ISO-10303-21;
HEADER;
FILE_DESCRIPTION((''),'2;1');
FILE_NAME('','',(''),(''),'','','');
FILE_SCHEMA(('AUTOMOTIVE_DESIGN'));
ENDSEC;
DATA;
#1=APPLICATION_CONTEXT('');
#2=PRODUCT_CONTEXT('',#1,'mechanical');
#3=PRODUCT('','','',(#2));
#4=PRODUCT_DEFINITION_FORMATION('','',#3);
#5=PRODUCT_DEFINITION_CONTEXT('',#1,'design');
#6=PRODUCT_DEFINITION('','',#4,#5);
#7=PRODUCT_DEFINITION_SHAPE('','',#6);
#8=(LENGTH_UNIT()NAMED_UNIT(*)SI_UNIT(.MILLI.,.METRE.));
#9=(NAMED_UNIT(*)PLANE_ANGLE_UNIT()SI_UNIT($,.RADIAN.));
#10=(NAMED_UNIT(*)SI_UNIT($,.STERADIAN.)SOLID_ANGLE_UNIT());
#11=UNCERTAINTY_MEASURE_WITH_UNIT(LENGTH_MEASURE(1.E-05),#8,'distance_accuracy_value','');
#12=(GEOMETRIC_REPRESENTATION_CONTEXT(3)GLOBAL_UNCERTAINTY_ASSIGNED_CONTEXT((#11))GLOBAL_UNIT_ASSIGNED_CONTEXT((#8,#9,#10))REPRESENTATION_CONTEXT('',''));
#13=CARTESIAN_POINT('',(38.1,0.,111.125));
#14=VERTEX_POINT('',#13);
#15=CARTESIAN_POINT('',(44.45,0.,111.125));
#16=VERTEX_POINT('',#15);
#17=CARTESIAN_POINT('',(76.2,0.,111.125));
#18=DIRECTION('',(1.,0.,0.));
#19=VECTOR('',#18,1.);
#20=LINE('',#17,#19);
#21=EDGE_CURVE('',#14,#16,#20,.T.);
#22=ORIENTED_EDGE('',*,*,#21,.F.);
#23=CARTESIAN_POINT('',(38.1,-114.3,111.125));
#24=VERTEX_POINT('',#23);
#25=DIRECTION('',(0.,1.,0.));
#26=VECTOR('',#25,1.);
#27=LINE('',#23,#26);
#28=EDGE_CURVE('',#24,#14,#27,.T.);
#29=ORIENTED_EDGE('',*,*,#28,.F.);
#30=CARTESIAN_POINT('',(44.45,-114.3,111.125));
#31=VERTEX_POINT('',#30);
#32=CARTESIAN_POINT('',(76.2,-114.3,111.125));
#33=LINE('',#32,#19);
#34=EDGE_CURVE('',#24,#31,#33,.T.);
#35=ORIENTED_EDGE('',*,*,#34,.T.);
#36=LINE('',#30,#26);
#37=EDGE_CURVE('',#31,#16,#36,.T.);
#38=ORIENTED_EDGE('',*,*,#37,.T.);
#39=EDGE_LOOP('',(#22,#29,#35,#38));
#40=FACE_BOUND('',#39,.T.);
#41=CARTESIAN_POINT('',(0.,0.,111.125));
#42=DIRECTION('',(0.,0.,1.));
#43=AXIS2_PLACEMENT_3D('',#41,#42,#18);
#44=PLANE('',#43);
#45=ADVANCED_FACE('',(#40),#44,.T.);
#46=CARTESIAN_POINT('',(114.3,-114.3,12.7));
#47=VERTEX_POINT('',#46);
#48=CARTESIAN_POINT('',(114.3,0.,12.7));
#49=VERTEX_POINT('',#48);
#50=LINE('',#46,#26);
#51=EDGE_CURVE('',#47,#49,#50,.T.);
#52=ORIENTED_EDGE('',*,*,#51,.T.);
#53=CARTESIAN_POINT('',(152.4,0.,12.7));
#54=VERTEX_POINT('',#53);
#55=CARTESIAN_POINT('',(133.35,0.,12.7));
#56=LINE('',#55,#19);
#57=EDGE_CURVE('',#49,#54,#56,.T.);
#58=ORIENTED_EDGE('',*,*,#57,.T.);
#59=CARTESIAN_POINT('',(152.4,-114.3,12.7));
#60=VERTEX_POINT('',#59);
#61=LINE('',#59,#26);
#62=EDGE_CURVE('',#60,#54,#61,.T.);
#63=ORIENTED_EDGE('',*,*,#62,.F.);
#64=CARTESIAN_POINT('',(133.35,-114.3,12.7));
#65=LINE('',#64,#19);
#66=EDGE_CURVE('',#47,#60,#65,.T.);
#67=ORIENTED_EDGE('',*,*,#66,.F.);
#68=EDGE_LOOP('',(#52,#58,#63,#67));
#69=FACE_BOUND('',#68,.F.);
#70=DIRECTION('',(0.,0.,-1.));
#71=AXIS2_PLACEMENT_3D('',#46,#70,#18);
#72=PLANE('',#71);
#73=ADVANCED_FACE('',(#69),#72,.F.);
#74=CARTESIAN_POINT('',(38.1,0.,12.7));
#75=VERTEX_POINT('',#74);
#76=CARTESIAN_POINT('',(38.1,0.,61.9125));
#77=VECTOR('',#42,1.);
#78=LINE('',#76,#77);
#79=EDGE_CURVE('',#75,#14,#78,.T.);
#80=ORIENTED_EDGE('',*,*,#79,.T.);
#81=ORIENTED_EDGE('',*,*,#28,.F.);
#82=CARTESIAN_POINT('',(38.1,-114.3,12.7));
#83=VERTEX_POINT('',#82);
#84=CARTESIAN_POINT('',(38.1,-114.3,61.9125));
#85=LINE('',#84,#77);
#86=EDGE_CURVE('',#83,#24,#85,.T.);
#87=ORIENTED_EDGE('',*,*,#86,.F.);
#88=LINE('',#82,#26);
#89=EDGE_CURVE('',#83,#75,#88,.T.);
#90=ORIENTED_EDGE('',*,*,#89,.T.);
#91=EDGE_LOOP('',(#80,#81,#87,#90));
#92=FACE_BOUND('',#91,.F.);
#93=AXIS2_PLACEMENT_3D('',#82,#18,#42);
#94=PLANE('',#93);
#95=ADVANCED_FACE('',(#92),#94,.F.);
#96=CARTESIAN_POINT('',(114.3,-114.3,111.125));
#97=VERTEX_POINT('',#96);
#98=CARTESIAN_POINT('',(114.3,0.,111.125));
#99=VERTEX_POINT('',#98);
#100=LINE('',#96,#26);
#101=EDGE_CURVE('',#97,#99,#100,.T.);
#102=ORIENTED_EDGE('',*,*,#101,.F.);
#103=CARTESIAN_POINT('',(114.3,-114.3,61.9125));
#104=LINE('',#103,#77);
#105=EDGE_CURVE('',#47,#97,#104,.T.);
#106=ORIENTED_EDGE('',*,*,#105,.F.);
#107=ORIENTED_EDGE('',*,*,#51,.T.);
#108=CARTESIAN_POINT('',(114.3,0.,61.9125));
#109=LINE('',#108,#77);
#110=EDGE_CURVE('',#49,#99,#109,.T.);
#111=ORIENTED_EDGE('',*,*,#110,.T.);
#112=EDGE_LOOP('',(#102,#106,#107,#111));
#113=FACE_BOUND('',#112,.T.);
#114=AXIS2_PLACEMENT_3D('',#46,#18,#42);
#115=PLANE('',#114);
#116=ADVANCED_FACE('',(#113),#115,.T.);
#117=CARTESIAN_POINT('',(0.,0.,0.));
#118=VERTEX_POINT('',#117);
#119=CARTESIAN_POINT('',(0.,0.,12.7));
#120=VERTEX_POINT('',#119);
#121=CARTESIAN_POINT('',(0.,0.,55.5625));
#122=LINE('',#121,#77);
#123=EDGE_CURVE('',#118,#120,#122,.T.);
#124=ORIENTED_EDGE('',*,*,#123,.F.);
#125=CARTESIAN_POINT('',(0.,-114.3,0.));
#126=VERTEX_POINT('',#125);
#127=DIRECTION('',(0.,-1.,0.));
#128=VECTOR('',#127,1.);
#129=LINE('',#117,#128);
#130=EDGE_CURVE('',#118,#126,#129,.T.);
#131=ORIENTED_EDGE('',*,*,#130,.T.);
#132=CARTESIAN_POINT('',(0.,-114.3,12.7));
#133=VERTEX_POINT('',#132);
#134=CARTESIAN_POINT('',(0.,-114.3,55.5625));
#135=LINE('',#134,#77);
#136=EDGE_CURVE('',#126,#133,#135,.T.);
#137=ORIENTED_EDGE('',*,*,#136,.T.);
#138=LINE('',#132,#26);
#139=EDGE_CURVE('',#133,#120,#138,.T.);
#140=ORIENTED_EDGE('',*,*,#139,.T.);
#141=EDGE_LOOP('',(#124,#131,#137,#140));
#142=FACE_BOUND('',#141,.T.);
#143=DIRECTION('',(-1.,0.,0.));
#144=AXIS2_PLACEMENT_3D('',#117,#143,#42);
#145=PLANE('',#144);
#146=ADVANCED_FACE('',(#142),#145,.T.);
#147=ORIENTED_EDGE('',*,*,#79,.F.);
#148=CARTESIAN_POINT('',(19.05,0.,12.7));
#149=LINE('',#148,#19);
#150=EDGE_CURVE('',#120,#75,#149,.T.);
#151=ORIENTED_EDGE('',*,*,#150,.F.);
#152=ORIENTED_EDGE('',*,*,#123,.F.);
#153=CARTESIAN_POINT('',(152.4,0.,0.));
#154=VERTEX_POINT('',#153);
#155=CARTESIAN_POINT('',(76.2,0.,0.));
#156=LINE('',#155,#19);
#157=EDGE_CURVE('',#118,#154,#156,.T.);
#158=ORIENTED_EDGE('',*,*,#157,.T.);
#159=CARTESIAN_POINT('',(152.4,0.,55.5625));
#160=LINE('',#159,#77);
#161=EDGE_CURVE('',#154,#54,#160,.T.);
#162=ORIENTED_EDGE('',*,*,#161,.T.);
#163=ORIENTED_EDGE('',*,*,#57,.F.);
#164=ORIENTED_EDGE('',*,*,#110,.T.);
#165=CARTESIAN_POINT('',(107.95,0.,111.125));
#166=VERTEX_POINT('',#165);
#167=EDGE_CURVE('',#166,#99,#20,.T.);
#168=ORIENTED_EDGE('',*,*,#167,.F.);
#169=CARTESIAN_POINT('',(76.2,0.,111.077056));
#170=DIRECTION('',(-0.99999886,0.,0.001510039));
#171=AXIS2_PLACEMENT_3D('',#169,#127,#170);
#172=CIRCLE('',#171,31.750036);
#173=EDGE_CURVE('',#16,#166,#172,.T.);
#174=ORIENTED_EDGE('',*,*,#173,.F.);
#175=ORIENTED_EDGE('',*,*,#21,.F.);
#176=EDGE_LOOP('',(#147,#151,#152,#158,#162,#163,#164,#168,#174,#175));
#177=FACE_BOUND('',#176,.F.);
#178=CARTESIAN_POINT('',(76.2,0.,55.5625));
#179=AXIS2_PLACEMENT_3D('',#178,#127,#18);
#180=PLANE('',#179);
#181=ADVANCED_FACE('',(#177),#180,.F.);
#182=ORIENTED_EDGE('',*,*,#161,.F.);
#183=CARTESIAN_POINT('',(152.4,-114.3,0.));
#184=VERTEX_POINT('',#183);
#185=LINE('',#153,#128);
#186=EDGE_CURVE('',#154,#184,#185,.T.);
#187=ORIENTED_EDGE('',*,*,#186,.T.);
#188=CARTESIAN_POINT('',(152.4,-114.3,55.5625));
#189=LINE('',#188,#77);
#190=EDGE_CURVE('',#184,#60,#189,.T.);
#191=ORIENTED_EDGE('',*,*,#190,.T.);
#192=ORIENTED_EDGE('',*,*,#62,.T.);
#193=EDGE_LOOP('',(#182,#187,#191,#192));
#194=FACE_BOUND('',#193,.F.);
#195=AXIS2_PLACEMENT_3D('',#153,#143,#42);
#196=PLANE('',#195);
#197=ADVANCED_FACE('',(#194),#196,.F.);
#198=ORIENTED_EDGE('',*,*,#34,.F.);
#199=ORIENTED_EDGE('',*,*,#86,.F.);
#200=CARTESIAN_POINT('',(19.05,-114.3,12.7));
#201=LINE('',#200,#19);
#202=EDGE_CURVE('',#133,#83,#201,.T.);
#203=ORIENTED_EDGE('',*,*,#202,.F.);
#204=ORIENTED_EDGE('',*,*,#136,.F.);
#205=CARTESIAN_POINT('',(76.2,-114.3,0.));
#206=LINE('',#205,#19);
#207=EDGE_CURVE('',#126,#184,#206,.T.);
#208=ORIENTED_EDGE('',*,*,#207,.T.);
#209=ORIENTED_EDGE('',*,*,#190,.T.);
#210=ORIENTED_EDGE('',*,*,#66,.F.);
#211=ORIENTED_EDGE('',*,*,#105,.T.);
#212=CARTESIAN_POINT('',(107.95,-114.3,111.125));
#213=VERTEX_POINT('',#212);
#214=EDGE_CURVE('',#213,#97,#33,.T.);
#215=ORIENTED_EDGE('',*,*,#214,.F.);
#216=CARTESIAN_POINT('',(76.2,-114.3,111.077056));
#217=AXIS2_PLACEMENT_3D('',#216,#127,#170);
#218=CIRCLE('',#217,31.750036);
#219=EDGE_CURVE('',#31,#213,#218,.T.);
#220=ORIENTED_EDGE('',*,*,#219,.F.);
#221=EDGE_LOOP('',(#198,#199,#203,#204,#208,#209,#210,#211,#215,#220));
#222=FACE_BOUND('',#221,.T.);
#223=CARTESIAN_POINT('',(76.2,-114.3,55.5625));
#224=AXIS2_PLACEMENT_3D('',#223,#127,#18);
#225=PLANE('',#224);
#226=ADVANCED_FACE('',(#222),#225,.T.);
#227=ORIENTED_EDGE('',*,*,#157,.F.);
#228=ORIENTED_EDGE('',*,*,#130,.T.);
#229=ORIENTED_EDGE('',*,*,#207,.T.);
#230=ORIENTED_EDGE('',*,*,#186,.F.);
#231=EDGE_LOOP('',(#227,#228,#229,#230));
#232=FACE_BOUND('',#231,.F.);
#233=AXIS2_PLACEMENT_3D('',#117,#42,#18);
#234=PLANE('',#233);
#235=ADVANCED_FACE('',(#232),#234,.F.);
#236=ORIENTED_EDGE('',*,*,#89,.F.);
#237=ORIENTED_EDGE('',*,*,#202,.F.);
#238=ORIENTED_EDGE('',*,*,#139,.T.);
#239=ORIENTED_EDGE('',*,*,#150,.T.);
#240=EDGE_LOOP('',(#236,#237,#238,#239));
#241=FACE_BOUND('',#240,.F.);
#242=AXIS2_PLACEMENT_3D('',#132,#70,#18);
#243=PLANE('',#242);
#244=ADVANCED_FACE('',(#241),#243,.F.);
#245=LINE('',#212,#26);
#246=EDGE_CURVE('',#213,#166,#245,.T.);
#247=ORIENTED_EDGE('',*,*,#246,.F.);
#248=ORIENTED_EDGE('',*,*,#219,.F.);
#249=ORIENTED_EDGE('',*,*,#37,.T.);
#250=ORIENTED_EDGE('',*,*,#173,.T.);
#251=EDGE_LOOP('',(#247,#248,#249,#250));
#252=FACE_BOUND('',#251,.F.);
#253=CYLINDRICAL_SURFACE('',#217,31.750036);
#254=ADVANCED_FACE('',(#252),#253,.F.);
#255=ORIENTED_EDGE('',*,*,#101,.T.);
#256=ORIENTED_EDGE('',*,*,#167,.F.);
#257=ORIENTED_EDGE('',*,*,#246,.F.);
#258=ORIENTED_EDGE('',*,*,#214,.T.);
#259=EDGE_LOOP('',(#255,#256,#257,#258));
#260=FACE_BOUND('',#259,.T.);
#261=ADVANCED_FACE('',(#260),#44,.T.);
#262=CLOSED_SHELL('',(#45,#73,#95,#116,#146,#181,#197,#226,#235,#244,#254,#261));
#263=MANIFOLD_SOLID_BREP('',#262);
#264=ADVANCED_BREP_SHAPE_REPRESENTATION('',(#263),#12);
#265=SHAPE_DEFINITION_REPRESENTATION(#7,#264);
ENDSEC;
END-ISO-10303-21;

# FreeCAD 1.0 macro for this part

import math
import FreeCAD as App
import Part
import Sketcher
from FreeCAD import Vector
Q = App.Units.Quantity

doc = App.newDocument("Part")
body = doc.addObject("PartDesign::Body", "Body")

# Sketch on XZ plane
sketch1 = doc.addObject("Sketcher::SketchObject", "Sketch")
body.addObject(sketch1)
sketch1.AttachmentSupport = (doc.XZ_Plane, [""])
sketch1.MapMode = "FlatFace"
sketch1.addGeometry([
    Part.LineSegment(Vector(0, 111, 0), Vector(0, 0, 0)),
    Part.LineSegment(Vector(0, 0, 0), Vector(152, 0, 0)),
    Part.LineSegment(Vector(152, 0, 0), Vector(152, 111, 0)),
    Part.LineSegment(Vector(152, 111, 0), Vector(0, 111, 0)),
], False)
sketch1.addConstraint([
    Sketcher.Constraint("Coincident", 0, 2, 1, 1),
    Sketcher.Constraint("Coincident", 1, 2, 2, 1),
    Sketcher.Constraint("Coincident", 2, 2, 3, 1),
    Sketcher.Constraint("Coincident", 3, 2, 0, 1),
    Sketcher.Constraint("Vertical", 0),
    Sketcher.Constraint("Horizontal", 1),
    Sketcher.Constraint("Vertical", 2),
    Sketcher.Constraint("Horizontal", 3),
    Sketcher.Constraint("Coincident", 0, 2, -1, 1),
    Sketcher.Constraint("DistanceX", 1, 1, 1, 2, Q("6 in")),
    Sketcher.Constraint("DistanceY", 0, 2, 0, 1, Q("4.375 in")),
])
pad1 = doc.addObject("PartDesign::Pad", "Pad")
body.addObject(pad1)
pad1.Profile = sketch1
pad1.Length = Q("4.5 in")

# Sketch on XZ plane
sketch2 = doc.addObject("Sketcher::SketchObject", "Sketch001")
body.addObject(sketch2)
sketch2.AttachmentSupport = (doc.XZ_Plane, [""])
sketch2.MapMode = "FlatFace"
sketch2.AttachmentOffset = App.Placement(Vector(0, 0, 4.5 * 25.4), App.Rotation())
sketch2.addGeometry([
    Part.LineSegment(Vector(0, 111, 0), Vector(0, 13, 0)),  # 0
    Part.LineSegment(Vector(0, 13, 0), Vector(38, 13, 0)),  # 1
    Part.LineSegment(Vector(38, 13, 0), Vector(38, 111, 0)),  # 2
    Part.LineSegment(Vector(38, 111, 0), Vector(0, 111, 0)),  # 3
    Part.LineSegment(Vector(114, 111, 0), Vector(114, 13, 0)),  # 4
    Part.LineSegment(Vector(114, 13, 0), Vector(152, 13, 0)),  # 5
    Part.LineSegment(Vector(152, 13, 0), Vector(152, 111, 0)),  # 6
    Part.LineSegment(Vector(152, 111, 0), Vector(114, 111, 0)),  # 7
], False)
sketch2.addConstraint([
    Sketcher.Constraint("Coincident", 0, 2, 1, 1),
    Sketcher.Constraint("Coincident", 1, 2, 2, 1),
    Sketcher.Constraint("Coincident", 2, 2, 3, 1),
    Sketcher.Constraint("Coincident", 3, 2, 0, 1),
    Sketcher.Constraint("Coincident", 4, 2, 5, 1),
    Sketcher.Constraint("Coincident", 5, 2, 6, 1),
    Sketcher.Constraint("Coincident", 6, 2, 7, 1),
    Sketcher.Constraint("Coincident", 7, 2, 4, 1),
    Sketcher.Constraint("Vertical", 0),
    Sketcher.Constraint("Horizontal", 1),
    Sketcher.Constraint("Vertical", 2),
    Sketcher.Constraint("Horizontal", 3),
    Sketcher.Constraint("Vertical", 4),
    Sketcher.Constraint("Horizontal", 5),
    Sketcher.Constraint("Vertical", 6),
    Sketcher.Constraint("Horizontal", 7),
    Sketcher.Constraint("PointOnObject", 0, 2, -2),
    Sketcher.Constraint("Horizontal", 1, 2, 4, 2),
    Sketcher.Constraint("Horizontal", 3, 2, 6, 2),
    Sketcher.Constraint("Equal", 3, 5),
    Sketcher.Constraint("DistanceX", 1, 1, 1, 2, Q("1.5 in")),
    Sketcher.Constraint("DistanceX", -1, 1, 5, 2, Q("6 in")),
    Sketcher.Constraint("DistanceY", -1, 1, 0, 2, Q("0.5 in")),
    Sketcher.Constraint("DistanceY", 0, 2, 0, 1, Q("3.875 in")),
])
pocket1 = doc.addObject("PartDesign::Pocket", "Pocket")
body.addObject(pocket1)
pocket1.Profile = sketch2
pocket1.Length = Q("4.5 in")

# Sketch on XZ plane
sketch3 = doc.addObject("Sketcher::SketchObject", "Sketch002")
body.addObject(sketch3)
sketch3.AttachmentSupport = (doc.XZ_Plane, [""])
sketch3.MapMode = "FlatFace"
sketch3.AttachmentOffset = App.Placement(Vector(0, 0, 4.5 * 25.4), App.Rotation())
sketch3.addGeometry([
    Part.LineSegment(Vector(108, 111, 0), Vector(44, 111, 0)),
    Part.ArcOfCircle(Part.Circle(Vector(76, 111, 0), Vector(0, 0, 1), 32), math.radians(180), math.radians(360)),
], False)
sketch3.addConstraint([
    Sketcher.Constraint("Coincident", 0, 1, 1, 2),
    Sketcher.Constraint("Coincident", 1, 1, 0, 2),
    Sketcher.Constraint("Horizontal", 0),
    Sketcher.Constraint("DistanceX", 0, 2, 0, 1, Q("2.5 in")),
    Sketcher.Constraint("DistanceX", -1, 1, 1, 3, Q("3 in")),
    Sketcher.Constraint("DistanceY", -1, 1, 0, 1, Q("4.375 in")),
    Sketcher.Constraint("DistanceY", -1, 1, 1, 3, 111.077056),
])
pocket2 = doc.addObject("PartDesign::Pocket", "Pocket001")
body.addObject(pocket2)
pocket2.Profile = sketch3
pocket2.Length = Q("4.5 in")

doc.recompute()
